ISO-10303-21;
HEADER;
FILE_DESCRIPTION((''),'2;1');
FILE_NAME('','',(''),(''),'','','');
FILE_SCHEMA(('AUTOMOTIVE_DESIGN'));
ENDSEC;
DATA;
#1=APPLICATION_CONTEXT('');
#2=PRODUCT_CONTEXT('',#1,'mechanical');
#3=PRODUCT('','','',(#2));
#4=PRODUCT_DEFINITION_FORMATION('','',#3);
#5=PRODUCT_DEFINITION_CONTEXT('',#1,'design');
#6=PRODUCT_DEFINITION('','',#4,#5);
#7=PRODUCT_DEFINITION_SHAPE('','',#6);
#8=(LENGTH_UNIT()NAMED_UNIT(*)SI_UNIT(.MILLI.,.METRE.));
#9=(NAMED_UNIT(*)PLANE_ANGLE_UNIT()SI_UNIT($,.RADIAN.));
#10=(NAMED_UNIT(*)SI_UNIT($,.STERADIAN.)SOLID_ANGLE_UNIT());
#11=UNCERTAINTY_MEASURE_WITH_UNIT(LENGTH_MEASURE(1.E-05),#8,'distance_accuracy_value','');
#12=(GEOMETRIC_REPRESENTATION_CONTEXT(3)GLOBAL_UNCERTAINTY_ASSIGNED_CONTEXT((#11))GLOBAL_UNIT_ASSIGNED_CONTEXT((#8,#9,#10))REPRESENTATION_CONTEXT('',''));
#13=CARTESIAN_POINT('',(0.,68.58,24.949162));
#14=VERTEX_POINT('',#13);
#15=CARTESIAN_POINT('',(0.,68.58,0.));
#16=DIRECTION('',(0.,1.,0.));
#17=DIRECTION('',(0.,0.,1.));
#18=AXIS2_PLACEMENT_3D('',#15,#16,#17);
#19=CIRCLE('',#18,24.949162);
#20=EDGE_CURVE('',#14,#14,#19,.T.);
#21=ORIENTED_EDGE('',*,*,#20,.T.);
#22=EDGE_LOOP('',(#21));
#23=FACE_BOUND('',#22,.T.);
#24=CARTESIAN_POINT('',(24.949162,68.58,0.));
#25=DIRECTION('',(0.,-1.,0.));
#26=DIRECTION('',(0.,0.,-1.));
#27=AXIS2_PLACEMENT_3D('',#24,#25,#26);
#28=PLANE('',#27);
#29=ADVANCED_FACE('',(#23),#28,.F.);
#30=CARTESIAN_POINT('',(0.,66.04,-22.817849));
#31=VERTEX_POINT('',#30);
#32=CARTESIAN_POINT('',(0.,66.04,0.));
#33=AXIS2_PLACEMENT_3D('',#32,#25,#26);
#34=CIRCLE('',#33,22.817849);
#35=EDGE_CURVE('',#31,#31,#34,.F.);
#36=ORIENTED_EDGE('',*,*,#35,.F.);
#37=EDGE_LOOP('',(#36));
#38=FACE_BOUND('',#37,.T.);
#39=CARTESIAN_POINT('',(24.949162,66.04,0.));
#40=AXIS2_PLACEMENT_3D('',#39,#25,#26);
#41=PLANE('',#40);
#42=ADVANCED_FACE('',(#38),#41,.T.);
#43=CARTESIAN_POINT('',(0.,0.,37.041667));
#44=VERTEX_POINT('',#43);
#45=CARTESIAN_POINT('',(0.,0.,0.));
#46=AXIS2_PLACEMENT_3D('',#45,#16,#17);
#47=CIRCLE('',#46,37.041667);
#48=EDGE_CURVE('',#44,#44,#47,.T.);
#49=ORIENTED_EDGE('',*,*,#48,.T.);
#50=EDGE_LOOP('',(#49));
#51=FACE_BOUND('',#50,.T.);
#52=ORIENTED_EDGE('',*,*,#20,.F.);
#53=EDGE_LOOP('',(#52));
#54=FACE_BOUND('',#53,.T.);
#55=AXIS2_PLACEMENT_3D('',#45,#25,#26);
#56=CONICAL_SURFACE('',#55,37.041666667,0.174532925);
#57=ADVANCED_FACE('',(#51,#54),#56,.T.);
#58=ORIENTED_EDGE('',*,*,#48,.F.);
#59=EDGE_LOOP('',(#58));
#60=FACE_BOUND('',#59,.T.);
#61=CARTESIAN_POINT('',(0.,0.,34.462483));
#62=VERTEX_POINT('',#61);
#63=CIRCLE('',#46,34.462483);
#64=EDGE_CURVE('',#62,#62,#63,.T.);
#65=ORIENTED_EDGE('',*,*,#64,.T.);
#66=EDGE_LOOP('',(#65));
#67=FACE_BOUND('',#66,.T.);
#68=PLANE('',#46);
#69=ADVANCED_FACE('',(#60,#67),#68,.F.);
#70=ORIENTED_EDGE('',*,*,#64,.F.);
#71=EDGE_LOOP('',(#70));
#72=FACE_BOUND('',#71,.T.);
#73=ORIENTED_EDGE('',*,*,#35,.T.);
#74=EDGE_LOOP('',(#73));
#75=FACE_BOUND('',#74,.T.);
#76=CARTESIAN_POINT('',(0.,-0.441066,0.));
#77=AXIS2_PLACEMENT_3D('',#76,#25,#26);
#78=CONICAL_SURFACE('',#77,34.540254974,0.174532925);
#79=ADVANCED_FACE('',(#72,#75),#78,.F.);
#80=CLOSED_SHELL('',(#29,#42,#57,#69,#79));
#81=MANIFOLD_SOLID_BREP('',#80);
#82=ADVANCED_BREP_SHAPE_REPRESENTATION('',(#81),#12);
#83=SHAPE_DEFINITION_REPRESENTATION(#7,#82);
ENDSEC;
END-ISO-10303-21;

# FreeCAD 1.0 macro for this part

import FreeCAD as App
import Part
import Sketcher
from FreeCAD import Vector
Q = App.Units.Quantity


def faces_at(feature, points):
    """Names of the faces that lie closest to the given points."""
    faces = feature.Shape.Faces
    near = lambda p: min(range(len(faces)), key=lambda i: faces[i].distToShape(Part.Vertex(*p))[0])
    return sorted({f"Face{near(p) + 1}" for p in points})

doc = App.newDocument("Part")
body = doc.addObject("PartDesign::Body", "Body")

sketch1 = body.newObject("Sketcher::SketchObject", "Sketch")
sketch1.AttachmentSupport = (doc.getObject("XY_Plane"), [""])
sketch1.MapMode = "FlatFace"
sketch1.addGeometry([
    Part.LineSegment(Vector(0, 0, 0), Vector(37.041667, 0, 0)),
    Part.LineSegment(Vector(37.041667, 0, 0), Vector(24.949162, 68.58, 0)),
    Part.LineSegment(Vector(24.949162, 68.58, 0), Vector(0, 68.58, 0)),
    Part.LineSegment(Vector(0, 68.58, 0), Vector(0, 0, 0)),
], False)
sketch1.addConstraint([
    Sketcher.Constraint("Coincident", 0, 2, 1, 1),
    Sketcher.Constraint("Coincident", 1, 2, 2, 1),
    Sketcher.Constraint("Coincident", 2, 2, 3, 1),
    Sketcher.Constraint("Coincident", 3, 2, 0, 1),
    Sketcher.Constraint("Horizontal", 0),
    Sketcher.Constraint("Horizontal", 2),
    Sketcher.Constraint("Vertical", 3),
    Sketcher.Constraint("Coincident", 3, 2, -1, 1),
    Sketcher.Constraint("DistanceY", 3, 2, 3, 1, Q("2.7 in")),
    Sketcher.Constraint("Angle", 1, Q("100 deg")),
    Sketcher.Constraint("DistanceX", 0, 1, 0, 2, 37.041667),
])
revolution = body.newObject("PartDesign::Revolution", "Revolution")
revolution.Profile = sketch1
revolution.ReferenceAxis = (sketch1, ["V_Axis"])
revolution.Angle = 360
doc.recompute()

thickness = body.newObject("PartDesign::Thickness", "Thickness")
thickness.Base = (revolution, faces_at(revolution, [(0, 0, 0)]))
thickness.Value = Q("0.1 in")
thickness.Reversed = True
thickness.Join = "Intersection"

doc.recompute()
